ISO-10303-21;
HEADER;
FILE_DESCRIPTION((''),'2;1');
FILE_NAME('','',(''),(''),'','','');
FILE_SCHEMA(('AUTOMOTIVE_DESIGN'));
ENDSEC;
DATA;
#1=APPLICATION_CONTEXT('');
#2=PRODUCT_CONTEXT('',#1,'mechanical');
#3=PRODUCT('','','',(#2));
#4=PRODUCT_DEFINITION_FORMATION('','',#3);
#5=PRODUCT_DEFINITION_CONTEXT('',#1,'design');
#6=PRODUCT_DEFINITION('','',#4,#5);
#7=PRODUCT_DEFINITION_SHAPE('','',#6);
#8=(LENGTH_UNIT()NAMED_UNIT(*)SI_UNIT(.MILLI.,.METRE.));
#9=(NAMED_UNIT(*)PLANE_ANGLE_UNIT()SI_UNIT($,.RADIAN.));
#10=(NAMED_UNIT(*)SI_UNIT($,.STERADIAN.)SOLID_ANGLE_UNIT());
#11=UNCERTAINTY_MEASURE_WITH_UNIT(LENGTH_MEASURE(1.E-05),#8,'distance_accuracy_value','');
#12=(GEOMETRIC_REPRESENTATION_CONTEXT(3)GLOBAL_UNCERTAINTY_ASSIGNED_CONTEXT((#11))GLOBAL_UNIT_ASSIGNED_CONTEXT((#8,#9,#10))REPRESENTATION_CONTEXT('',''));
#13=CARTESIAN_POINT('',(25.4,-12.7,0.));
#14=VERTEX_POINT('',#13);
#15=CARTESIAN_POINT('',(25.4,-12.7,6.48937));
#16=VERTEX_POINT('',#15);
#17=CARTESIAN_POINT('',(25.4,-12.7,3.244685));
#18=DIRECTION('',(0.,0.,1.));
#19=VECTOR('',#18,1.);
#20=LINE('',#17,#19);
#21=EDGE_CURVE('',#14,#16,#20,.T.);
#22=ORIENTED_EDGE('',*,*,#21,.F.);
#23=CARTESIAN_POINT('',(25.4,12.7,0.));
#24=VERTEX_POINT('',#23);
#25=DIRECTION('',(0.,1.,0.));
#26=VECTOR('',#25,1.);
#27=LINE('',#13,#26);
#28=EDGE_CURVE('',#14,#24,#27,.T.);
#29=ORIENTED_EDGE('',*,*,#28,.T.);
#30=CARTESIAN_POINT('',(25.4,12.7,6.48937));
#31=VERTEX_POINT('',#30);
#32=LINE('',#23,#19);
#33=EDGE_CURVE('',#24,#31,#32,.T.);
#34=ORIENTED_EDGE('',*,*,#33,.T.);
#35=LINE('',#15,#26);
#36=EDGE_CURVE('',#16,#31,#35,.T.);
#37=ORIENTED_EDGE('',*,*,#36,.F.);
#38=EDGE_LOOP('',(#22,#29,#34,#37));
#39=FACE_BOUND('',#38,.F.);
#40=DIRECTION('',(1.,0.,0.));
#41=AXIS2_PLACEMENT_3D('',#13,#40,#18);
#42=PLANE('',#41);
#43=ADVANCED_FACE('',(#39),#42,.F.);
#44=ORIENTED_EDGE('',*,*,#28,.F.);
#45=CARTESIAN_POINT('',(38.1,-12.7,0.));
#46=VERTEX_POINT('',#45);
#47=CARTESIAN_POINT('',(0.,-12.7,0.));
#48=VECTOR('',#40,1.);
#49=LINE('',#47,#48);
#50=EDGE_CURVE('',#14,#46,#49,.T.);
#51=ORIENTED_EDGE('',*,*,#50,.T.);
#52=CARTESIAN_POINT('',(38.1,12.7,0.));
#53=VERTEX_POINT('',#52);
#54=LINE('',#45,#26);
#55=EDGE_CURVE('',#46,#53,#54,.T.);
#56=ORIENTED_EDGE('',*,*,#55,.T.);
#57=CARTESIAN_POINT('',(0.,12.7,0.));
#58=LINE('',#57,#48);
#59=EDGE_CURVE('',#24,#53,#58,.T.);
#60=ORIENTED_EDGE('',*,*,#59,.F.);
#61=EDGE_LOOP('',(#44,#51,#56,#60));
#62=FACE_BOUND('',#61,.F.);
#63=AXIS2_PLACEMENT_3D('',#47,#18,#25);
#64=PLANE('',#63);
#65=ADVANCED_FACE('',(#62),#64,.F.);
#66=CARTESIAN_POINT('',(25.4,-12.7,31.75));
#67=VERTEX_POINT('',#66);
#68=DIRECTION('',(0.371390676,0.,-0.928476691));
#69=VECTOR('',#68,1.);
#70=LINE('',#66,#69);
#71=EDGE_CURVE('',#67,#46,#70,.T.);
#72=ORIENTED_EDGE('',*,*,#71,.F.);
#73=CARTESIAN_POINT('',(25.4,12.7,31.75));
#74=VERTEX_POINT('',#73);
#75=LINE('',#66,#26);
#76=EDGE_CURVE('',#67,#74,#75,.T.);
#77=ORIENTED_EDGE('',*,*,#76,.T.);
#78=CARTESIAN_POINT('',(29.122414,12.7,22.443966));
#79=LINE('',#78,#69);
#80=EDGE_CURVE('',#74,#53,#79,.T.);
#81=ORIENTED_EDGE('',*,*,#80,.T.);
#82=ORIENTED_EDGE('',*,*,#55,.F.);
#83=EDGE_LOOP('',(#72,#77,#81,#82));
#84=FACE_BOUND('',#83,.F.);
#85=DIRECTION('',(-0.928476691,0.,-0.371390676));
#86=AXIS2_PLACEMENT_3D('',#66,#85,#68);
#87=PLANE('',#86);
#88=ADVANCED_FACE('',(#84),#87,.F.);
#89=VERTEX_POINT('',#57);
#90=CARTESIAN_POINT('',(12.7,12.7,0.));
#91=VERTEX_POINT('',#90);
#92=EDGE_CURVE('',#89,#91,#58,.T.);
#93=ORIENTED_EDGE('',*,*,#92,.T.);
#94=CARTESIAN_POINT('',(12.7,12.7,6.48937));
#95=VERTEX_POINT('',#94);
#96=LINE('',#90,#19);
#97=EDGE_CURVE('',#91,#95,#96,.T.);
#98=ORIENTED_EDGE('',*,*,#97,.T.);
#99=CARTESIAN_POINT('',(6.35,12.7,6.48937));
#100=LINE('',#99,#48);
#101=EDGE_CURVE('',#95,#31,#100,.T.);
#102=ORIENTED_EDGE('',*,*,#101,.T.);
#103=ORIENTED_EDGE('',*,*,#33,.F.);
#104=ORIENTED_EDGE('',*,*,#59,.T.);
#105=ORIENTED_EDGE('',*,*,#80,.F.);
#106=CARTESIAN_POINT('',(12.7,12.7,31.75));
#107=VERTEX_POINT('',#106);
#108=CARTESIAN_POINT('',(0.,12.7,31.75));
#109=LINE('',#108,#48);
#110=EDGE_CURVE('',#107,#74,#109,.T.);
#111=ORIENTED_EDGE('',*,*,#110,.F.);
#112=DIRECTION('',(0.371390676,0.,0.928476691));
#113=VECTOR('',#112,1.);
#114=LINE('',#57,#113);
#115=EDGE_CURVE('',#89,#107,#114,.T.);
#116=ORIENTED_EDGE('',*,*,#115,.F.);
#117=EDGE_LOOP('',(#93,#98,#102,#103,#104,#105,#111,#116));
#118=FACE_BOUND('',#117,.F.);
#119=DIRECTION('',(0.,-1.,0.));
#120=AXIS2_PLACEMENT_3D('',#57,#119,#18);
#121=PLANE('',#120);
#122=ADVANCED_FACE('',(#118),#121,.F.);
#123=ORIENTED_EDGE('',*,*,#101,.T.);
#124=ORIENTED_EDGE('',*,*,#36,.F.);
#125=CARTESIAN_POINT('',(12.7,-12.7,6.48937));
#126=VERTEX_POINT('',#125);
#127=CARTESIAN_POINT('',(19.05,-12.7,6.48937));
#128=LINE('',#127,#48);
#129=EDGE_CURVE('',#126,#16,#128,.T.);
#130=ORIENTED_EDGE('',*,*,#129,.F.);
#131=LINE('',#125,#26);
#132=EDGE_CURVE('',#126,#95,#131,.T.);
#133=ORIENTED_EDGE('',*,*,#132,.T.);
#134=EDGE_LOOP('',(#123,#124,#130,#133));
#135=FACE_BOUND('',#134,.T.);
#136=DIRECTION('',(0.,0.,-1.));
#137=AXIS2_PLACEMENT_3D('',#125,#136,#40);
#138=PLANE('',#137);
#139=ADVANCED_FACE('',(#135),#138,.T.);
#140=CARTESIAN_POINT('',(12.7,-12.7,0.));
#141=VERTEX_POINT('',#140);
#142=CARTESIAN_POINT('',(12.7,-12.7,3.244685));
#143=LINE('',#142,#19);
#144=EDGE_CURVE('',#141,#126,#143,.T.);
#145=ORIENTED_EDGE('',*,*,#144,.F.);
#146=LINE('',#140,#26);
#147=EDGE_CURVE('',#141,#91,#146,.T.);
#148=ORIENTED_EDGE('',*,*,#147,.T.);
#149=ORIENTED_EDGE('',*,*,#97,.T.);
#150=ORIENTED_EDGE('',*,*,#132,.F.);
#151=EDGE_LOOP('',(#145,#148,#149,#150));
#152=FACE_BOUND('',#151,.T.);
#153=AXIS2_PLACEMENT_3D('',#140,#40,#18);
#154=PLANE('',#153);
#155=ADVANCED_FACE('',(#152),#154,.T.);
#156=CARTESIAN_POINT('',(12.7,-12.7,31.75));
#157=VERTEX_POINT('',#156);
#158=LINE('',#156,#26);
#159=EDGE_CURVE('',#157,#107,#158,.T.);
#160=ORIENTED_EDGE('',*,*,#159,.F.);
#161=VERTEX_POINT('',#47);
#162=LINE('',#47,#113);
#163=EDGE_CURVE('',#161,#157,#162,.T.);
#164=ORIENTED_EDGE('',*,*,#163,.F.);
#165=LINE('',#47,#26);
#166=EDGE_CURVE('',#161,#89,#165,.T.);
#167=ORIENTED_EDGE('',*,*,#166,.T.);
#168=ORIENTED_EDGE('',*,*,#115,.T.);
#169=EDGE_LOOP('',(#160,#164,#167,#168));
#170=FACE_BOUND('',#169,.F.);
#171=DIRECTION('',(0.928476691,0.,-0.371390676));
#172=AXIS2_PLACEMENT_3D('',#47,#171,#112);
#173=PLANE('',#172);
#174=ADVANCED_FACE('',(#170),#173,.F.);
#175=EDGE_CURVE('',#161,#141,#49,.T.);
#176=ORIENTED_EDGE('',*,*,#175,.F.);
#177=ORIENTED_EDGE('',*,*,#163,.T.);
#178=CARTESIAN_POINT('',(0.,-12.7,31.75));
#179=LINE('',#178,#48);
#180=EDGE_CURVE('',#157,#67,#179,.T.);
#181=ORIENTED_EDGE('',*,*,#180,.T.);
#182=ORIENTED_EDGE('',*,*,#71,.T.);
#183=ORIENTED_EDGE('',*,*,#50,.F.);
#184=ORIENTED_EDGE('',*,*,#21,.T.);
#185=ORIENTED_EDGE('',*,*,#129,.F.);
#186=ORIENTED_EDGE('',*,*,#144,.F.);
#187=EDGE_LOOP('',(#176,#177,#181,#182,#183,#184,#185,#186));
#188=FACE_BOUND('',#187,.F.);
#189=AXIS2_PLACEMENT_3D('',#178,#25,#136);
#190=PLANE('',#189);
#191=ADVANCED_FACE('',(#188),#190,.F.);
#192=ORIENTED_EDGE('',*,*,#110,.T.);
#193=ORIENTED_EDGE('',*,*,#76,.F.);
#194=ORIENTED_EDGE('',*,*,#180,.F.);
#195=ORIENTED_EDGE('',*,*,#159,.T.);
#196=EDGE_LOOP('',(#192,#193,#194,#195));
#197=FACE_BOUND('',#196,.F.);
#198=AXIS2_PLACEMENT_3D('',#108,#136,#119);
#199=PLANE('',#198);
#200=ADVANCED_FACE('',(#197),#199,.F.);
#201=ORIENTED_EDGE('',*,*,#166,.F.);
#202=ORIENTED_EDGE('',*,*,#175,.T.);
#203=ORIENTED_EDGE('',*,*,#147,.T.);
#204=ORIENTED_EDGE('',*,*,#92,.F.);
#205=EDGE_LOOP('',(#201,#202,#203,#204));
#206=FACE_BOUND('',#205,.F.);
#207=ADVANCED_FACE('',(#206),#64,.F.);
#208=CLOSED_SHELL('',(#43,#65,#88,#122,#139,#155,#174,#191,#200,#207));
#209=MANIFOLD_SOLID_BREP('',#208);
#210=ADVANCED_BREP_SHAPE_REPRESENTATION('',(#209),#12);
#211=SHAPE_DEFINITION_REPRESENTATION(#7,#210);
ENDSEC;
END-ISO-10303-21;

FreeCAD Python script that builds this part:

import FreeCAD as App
import Part
import Sketcher
from FreeCAD import Vector
Q = App.Units.Quantity

doc = App.newDocument("Part")
body = doc.addObject("PartDesign::Body", "Body")

# Sketch on YZ plane
sketch1 = body.newObject("Sketcher::SketchObject", "Sketch")
sketch1.AttachmentSupport = (doc.getObject("YZ_Plane"), [""])
sketch1.MapMode = "FlatFace"
sketch1.addGeometry(Part.LineSegment(Vector(-13, 32, 0), Vector(-13, 0, 0)), False)
sketch1.addGeometry(Part.LineSegment(Vector(-13, 0, 0), Vector(13, 0, 0)), False)
sketch1.addGeometry(Part.LineSegment(Vector(13, 0, 0), Vector(13, 32, 0)), False)
sketch1.addGeometry(Part.LineSegment(Vector(13, 32, 0), Vector(-13, 32, 0)), False)
sketch1.addConstraint(Sketcher.Constraint("Coincident", 0, 2, 1, 1))
sketch1.addConstraint(Sketcher.Constraint("Coincident", 1, 2, 2, 1))
sketch1.addConstraint(Sketcher.Constraint("Coincident", 2, 2, 3, 1))
sketch1.addConstraint(Sketcher.Constraint("Coincident", 3, 2, 0, 1))
sketch1.addConstraint(Sketcher.Constraint("Vertical", 0))
sketch1.addConstraint(Sketcher.Constraint("Horizontal", 1))
sketch1.addConstraint(Sketcher.Constraint("Vertical", 2))
sketch1.addConstraint(Sketcher.Constraint("Horizontal", 3))
sketch1.addConstraint(Sketcher.Constraint("Symmetric", 0, 2, 1, 2, -1, 1))
sketch1.addConstraint(Sketcher.Constraint("DistanceX", 1, 1, 1, 2, Q("1 in")))
sketch1.addConstraint(Sketcher.Constraint("DistanceY", 0, 2, 0, 1, Q("1.25 in")))
pad1 = body.newObject("PartDesign::Pad", "Pad")
pad1.Profile = sketch1
pad1.Length = Q("1.5 in")

# Sketch on XZ plane
sketch2 = body.newObject("Sketcher::SketchObject", "Sketch001")
sketch2.AttachmentSupport = (doc.getObject("XZ_Plane"), [""])
sketch2.MapMode = "FlatFace"
sketch2.AttachmentOffset = App.Placement(Vector(0, 0, 0.5 * 25.4), App.Rotation())
sketch2.addGeometry(Part.LineSegment(Vector(0, 32, 0), Vector(0, 0, 0)), False)
sketch2.addGeometry(Part.LineSegment(Vector(0, 0, 0), Vector(13, 32, 0)), False)
sketch2.addGeometry(Part.LineSegment(Vector(13, 32, 0), Vector(0, 32, 0)), False)
sketch2.addGeometry(Part.LineSegment(Vector(25, 32, 0), Vector(38, 0, 0)), False)
sketch2.addGeometry(Part.LineSegment(Vector(38, 0, 0), Vector(38, 32, 0)), False)
sketch2.addGeometry(Part.LineSegment(Vector(38, 32, 0), Vector(25, 32, 0)), False)
sketch2.addConstraint(Sketcher.Constraint("Coincident", 0, 2, 1, 1))
sketch2.addConstraint(Sketcher.Constraint("Coincident", 1, 2, 2, 1))
sketch2.addConstraint(Sketcher.Constraint("Coincident", 2, 2, 0, 1))
sketch2.addConstraint(Sketcher.Constraint("Coincident", 3, 2, 4, 1))
sketch2.addConstraint(Sketcher.Constraint("Coincident", 4, 2, 5, 1))
sketch2.addConstraint(Sketcher.Constraint("Coincident", 5, 2, 3, 1))
sketch2.addConstraint(Sketcher.Constraint("Vertical", 0))
sketch2.addConstraint(Sketcher.Constraint("Horizontal", 2))
sketch2.addConstraint(Sketcher.Constraint("Vertical", 4))
sketch2.addConstraint(Sketcher.Constraint("Horizontal", 5))
sketch2.addConstraint(Sketcher.Constraint("Coincident", 0, 2, -1, 1))
sketch2.addConstraint(Sketcher.Constraint("PointOnObject", 3, 2, -1))
sketch2.addConstraint(Sketcher.Constraint("Horizontal", 2, 2, 4, 2))
sketch2.addConstraint(Sketcher.Constraint("Equal", 2, 5))
sketch2.addConstraint(Sketcher.Constraint("DistanceX", 2, 2, 2, 1, Q("0.5 in")))
sketch2.addConstraint(Sketcher.Constraint("DistanceX", -1, 1, 5, 2, Q("1 in")))
sketch2.addConstraint(Sketcher.Constraint("DistanceY", 0, 2, 0, 1, Q("1.25 in")))
pocket1 = body.newObject("PartDesign::Pocket", "Pocket")
pocket1.Profile = sketch2
pocket1.Type = "ThroughAll"

# Sketch on XZ plane
sketch3 = body.newObject("Sketcher::SketchObject", "Sketch002")
sketch3.AttachmentSupport = (doc.getObject("XZ_Plane"), [""])
sketch3.MapMode = "FlatFace"
sketch3.AttachmentOffset = App.Placement(Vector(0, 0, 0.5 * 25.4), App.Rotation())
sketch3.addGeometry(Part.LineSegment(Vector(13, 6, 0), Vector(13, 0, 0)), False)
sketch3.addGeometry(Part.LineSegment(Vector(13, 0, 0), Vector(25, 0, 0)), False)
sketch3.addGeometry(Part.LineSegment(Vector(25, 0, 0), Vector(25, 6, 0)), False)
sketch3.addGeometry(Part.LineSegment(Vector(25, 6, 0), Vector(13, 6, 0)), False)
sketch3.addConstraint(Sketcher.Constraint("Coincident", 0, 2, 1, 1))
sketch3.addConstraint(Sketcher.Constraint("Coincident", 1, 2, 2, 1))
sketch3.addConstraint(Sketcher.Constraint("Coincident", 2, 2, 3, 1))
sketch3.addConstraint(Sketcher.Constraint("Coincident", 3, 2, 0, 1))
sketch3.addConstraint(Sketcher.Constraint("Vertical", 0))
sketch3.addConstraint(Sketcher.Constraint("Horizontal", 1))
sketch3.addConstraint(Sketcher.Constraint("Vertical", 2))
sketch3.addConstraint(Sketcher.Constraint("Horizontal", 3))
sketch3.addConstraint(Sketcher.Constraint("PointOnObject", 0, 2, -1))
sketch3.addConstraint(Sketcher.Constraint("DistanceX", 1, 1, 1, 2, Q("0.5 in")))
sketch3.addConstraint(Sketcher.Constraint("DistanceX", -1, 1, 1, 2, Q("1 in")))
sketch3.addConstraint(Sketcher.Constraint("DistanceY", 0, 2, 0, 1, 6.48937))
pocket2 = body.newObject("PartDesign::Pocket", "Pocket001")
pocket2.Profile = sketch3
pocket2.Type = "ThroughAll"

doc.recompute()
